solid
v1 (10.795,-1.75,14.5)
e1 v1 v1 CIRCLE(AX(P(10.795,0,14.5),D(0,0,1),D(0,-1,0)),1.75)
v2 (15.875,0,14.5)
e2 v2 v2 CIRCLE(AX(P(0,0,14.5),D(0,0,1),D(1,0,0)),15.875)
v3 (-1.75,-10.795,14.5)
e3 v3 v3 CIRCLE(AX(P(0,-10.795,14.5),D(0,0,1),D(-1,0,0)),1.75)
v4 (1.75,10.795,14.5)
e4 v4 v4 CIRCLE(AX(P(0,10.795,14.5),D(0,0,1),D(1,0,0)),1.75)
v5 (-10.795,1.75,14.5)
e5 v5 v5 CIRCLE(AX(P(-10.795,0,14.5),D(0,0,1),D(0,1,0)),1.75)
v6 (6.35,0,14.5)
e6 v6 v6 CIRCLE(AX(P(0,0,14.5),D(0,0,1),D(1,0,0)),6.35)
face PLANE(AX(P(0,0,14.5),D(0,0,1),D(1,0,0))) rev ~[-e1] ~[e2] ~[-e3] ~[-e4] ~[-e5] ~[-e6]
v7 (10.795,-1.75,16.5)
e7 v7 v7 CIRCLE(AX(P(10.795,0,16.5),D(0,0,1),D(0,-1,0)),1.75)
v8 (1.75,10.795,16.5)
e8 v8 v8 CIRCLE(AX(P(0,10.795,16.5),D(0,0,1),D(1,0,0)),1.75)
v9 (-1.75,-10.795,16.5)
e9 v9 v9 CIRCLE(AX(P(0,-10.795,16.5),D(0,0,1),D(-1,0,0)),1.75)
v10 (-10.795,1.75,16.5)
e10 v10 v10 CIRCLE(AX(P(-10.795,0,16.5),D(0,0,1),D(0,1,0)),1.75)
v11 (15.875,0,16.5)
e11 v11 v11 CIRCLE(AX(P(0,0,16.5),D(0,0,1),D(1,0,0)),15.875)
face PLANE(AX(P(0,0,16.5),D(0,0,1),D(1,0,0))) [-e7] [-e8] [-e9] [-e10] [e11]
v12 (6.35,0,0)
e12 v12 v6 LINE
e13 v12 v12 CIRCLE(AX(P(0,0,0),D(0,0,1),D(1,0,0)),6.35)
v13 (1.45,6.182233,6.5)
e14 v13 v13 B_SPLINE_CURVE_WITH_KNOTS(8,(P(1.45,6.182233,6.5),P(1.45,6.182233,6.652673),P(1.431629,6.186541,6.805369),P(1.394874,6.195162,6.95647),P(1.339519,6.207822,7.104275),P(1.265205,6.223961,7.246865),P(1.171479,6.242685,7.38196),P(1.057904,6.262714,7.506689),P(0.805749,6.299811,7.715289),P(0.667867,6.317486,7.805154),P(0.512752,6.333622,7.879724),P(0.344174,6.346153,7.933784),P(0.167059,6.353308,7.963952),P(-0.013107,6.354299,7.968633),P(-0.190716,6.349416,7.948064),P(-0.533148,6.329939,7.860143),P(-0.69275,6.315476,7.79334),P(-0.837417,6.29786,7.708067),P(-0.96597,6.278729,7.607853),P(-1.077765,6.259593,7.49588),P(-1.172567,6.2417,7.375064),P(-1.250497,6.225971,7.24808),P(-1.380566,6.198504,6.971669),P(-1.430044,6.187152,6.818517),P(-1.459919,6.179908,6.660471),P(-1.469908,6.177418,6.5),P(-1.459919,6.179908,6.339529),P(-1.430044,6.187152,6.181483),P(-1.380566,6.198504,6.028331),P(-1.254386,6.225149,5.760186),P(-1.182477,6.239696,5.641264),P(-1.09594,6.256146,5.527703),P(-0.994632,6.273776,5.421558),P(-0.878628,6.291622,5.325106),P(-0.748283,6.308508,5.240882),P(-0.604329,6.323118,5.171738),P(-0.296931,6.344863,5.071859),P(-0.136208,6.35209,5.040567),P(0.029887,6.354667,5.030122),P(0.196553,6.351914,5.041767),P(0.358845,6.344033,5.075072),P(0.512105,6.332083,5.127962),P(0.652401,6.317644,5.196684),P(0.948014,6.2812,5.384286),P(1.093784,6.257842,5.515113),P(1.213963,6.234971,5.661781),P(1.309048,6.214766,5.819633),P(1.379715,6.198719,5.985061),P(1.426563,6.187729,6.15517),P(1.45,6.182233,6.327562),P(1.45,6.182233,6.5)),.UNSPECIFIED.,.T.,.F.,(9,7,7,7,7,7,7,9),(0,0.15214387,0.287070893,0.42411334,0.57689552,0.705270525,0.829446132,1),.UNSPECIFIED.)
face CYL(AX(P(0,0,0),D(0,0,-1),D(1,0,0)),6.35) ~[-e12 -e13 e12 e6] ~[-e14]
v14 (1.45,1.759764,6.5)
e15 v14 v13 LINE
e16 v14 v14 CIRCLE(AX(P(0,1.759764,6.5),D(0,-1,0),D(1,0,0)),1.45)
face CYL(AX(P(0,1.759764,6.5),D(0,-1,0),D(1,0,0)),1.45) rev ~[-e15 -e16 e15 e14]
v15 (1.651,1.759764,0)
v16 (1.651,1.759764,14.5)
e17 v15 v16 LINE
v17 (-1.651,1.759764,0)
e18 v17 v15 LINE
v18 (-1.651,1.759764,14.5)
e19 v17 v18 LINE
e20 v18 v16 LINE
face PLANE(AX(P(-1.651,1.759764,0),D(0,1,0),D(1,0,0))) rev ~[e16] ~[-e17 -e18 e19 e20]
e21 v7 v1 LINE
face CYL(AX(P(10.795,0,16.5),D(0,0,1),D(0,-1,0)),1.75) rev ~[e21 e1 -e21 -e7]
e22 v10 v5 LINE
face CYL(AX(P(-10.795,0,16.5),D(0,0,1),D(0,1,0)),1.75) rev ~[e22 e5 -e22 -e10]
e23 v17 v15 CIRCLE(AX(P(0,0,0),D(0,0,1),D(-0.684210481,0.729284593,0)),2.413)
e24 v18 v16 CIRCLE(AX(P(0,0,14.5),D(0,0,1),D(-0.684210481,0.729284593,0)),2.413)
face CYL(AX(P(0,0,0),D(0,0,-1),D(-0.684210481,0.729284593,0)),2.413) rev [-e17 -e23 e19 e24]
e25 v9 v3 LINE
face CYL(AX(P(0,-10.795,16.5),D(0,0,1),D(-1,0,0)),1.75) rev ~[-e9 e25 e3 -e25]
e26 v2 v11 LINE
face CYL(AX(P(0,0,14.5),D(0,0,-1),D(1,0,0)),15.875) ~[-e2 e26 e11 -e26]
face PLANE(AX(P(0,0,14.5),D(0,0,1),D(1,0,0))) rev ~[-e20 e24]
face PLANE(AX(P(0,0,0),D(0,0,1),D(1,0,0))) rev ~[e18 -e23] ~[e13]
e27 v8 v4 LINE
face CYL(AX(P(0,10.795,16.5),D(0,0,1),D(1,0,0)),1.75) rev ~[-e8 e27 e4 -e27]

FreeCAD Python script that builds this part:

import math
import FreeCAD as App
import Part
import Sketcher

doc = App.newDocument("Part")
body = doc.addObject("PartDesign::Body", "Body")

# Sketch on XY plane
sketch1 = body.newObject("Sketcher::SketchObject", "Sketch")
sketch1.AttachmentSupport = (doc.getObject("XY_Plane"), [""])
sketch1.MapMode = "FlatFace"
sketch1.addGeometry([
    Part.Circle(App.Vector(0, 0, 0), App.Vector(0, 0, 1), 6.3),
    Part.ArcOfCircle(Part.Circle(App.Vector(0, 0, 0), App.Vector(0, 0, 1), 2.4), math.radians(133), math.radians(407)),
    Part.LineSegment(App.Vector(-1.7, 1.8, 0), App.Vector(1.7, 1.8, 0)),
], False)
sketch1.addConstraint([
    Sketcher.Constraint("Coincident", 1, 1, 2, 1),
    Sketcher.Constraint("Coincident", 2, 2, 1, 2),
    Sketcher.Constraint("Horizontal", 2),
    Sketcher.Constraint("Coincident", 0, 3, -1, 1),
    Sketcher.Constraint("Coincident", 1, 3, -1, 1),
    Sketcher.Constraint("Diameter", 0, 12.7),
    Sketcher.Constraint("Radius", 1, 2.413),
    Sketcher.Constraint("DistanceX", 2, 1, 2, 2, 3.302),
])
pad1 = body.newObject("PartDesign::Pad", "Pad")
pad1.Profile = sketch1
pad1.Length = 14.5

# Sketch on XZ plane
sketch2 = body.newObject("Sketcher::SketchObject", "Sketch001")
sketch2.AttachmentSupport = (doc.getObject("XZ_Plane"), [""])
sketch2.MapMode = "FlatFace"
sketch2.AttachmentOffset = App.Placement(App.Vector(0, 0, -1.759764), App.Rotation())
sketch2.addGeometry(Part.Circle(App.Vector(0, 6.5, 0), App.Vector(0, 0, 1), 1.4), False)
sketch2.addConstraint([
    Sketcher.Constraint("PointOnObject", 0, 3, -2),
    Sketcher.Constraint("Diameter", 0, 2.9),
    Sketcher.Constraint("DistanceY", -1, 1, 0, 3, 6.5),
])
pocket1 = body.newObject("PartDesign::Pocket", "Pocket")
pocket1.Profile = sketch2
pocket1.Length = 4.590236

# Sketch on XY plane
sketch3 = body.newObject("Sketcher::SketchObject", "Sketch002")
sketch3.AttachmentSupport = (doc.getObject("XY_Plane"), [""])
sketch3.MapMode = "FlatFace"
sketch3.AttachmentOffset = App.Placement(App.Vector(0, 0, 14.5), App.Rotation())
sketch3.addGeometry(Part.Circle(App.Vector(0, 0, 0), App.Vector(0, 0, 1), 16), False)
sketch3.addConstraint([
    Sketcher.Constraint("Coincident", 0, 3, -1, 1),
    Sketcher.Constraint("Diameter", 0, 31.75),
])
pad2 = body.newObject("PartDesign::Pad", "Pad001")
pad2.Profile = sketch3
pad2.Length = 2

# Sketch on XY plane
sketch4 = body.newObject("Sketcher::SketchObject", "Sketch003")
sketch4.AttachmentSupport = (doc.getObject("XY_Plane"), [""])
sketch4.MapMode = "FlatFace"
sketch4.AttachmentOffset = App.Placement(App.Vector(0, 0, 16.5), App.Rotation())
sketch4.addGeometry(Part.Circle(App.Vector(0, 10.8, 0), App.Vector(0, 0, 1), 1.8), False)
sketch4.addConstraint([
    Sketcher.Constraint("PointOnObject", 0, 3, -2),
    Sketcher.Constraint("Diameter", 0, 3.5),
    Sketcher.Constraint("DistanceY", -1, 1, 0, 3, 10.795),
])
pocket2 = body.newObject("PartDesign::Pocket", "Pocket001")
pocket2.Profile = sketch4
pocket2.Length = 5
doc.recompute()

polarpattern = body.newObject("PartDesign::PolarPattern", "PolarPattern")
polarpattern.Originals = [pocket2]
polarpattern.Axis = (doc.getObject("Z_Axis"), [""])
polarpattern.Angle = 360
polarpattern.Occurrences = 4
body.Tip = polarpattern

doc.recompute()
